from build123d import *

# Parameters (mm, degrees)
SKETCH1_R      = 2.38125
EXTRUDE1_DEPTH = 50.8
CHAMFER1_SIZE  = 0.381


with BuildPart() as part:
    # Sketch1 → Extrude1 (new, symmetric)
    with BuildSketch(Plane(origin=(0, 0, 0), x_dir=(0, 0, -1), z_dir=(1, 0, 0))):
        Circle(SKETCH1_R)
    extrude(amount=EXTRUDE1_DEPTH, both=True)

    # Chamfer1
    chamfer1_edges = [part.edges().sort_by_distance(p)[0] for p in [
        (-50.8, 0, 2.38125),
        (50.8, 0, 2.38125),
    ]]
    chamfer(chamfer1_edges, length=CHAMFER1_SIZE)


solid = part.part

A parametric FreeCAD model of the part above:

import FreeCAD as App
import Part
import Sketcher

V = App.Vector
Q = App.Units.Quantity


def edges_at(feature, points):
    """Names of the edges that pass closest to the given points."""
    edges = feature.Shape.Edges
    near = lambda p: min(range(len(edges)), key=lambda i: edges[i].distToShape(Part.Vertex(*p))[0])
    return sorted({f"Edge{near(p) + 1}" for p in points})

doc = App.newDocument("Part")
body = doc.addObject("PartDesign::Body", "Body")

# Sketch on YZ plane
sketch1 = body.newObject("Sketcher::SketchObject", "Sketch")
sketch1.AttachmentSupport = (doc.getObject("YZ_Plane"), [""])
sketch1.MapMode = "FlatFace"
sketch1.addGeometry(Part.Circle(V(0, 0, 0), V(0, 0, 1), 2.4), False)
sketch1.addConstraint([
    Sketcher.Constraint("Coincident", 0, 3, -1, 1),
    Sketcher.Constraint("Diameter", 0, Q("0.1875 in")),
])
pad1 = body.newObject("PartDesign::Pad", "Pad")
pad1.Profile = sketch1
pad1.Length = Q("4 in")
pad1.Midplane = True
doc.recompute()

chamfer = body.newObject("PartDesign::Chamfer", "Chamfer")
chamfer.Base = (pad1, edges_at(pad1, [(-50.8, 0, 2.381), (50.8, 0, 2.381)]))
chamfer.Size = Q("0.015 in")

doc.recompute()
